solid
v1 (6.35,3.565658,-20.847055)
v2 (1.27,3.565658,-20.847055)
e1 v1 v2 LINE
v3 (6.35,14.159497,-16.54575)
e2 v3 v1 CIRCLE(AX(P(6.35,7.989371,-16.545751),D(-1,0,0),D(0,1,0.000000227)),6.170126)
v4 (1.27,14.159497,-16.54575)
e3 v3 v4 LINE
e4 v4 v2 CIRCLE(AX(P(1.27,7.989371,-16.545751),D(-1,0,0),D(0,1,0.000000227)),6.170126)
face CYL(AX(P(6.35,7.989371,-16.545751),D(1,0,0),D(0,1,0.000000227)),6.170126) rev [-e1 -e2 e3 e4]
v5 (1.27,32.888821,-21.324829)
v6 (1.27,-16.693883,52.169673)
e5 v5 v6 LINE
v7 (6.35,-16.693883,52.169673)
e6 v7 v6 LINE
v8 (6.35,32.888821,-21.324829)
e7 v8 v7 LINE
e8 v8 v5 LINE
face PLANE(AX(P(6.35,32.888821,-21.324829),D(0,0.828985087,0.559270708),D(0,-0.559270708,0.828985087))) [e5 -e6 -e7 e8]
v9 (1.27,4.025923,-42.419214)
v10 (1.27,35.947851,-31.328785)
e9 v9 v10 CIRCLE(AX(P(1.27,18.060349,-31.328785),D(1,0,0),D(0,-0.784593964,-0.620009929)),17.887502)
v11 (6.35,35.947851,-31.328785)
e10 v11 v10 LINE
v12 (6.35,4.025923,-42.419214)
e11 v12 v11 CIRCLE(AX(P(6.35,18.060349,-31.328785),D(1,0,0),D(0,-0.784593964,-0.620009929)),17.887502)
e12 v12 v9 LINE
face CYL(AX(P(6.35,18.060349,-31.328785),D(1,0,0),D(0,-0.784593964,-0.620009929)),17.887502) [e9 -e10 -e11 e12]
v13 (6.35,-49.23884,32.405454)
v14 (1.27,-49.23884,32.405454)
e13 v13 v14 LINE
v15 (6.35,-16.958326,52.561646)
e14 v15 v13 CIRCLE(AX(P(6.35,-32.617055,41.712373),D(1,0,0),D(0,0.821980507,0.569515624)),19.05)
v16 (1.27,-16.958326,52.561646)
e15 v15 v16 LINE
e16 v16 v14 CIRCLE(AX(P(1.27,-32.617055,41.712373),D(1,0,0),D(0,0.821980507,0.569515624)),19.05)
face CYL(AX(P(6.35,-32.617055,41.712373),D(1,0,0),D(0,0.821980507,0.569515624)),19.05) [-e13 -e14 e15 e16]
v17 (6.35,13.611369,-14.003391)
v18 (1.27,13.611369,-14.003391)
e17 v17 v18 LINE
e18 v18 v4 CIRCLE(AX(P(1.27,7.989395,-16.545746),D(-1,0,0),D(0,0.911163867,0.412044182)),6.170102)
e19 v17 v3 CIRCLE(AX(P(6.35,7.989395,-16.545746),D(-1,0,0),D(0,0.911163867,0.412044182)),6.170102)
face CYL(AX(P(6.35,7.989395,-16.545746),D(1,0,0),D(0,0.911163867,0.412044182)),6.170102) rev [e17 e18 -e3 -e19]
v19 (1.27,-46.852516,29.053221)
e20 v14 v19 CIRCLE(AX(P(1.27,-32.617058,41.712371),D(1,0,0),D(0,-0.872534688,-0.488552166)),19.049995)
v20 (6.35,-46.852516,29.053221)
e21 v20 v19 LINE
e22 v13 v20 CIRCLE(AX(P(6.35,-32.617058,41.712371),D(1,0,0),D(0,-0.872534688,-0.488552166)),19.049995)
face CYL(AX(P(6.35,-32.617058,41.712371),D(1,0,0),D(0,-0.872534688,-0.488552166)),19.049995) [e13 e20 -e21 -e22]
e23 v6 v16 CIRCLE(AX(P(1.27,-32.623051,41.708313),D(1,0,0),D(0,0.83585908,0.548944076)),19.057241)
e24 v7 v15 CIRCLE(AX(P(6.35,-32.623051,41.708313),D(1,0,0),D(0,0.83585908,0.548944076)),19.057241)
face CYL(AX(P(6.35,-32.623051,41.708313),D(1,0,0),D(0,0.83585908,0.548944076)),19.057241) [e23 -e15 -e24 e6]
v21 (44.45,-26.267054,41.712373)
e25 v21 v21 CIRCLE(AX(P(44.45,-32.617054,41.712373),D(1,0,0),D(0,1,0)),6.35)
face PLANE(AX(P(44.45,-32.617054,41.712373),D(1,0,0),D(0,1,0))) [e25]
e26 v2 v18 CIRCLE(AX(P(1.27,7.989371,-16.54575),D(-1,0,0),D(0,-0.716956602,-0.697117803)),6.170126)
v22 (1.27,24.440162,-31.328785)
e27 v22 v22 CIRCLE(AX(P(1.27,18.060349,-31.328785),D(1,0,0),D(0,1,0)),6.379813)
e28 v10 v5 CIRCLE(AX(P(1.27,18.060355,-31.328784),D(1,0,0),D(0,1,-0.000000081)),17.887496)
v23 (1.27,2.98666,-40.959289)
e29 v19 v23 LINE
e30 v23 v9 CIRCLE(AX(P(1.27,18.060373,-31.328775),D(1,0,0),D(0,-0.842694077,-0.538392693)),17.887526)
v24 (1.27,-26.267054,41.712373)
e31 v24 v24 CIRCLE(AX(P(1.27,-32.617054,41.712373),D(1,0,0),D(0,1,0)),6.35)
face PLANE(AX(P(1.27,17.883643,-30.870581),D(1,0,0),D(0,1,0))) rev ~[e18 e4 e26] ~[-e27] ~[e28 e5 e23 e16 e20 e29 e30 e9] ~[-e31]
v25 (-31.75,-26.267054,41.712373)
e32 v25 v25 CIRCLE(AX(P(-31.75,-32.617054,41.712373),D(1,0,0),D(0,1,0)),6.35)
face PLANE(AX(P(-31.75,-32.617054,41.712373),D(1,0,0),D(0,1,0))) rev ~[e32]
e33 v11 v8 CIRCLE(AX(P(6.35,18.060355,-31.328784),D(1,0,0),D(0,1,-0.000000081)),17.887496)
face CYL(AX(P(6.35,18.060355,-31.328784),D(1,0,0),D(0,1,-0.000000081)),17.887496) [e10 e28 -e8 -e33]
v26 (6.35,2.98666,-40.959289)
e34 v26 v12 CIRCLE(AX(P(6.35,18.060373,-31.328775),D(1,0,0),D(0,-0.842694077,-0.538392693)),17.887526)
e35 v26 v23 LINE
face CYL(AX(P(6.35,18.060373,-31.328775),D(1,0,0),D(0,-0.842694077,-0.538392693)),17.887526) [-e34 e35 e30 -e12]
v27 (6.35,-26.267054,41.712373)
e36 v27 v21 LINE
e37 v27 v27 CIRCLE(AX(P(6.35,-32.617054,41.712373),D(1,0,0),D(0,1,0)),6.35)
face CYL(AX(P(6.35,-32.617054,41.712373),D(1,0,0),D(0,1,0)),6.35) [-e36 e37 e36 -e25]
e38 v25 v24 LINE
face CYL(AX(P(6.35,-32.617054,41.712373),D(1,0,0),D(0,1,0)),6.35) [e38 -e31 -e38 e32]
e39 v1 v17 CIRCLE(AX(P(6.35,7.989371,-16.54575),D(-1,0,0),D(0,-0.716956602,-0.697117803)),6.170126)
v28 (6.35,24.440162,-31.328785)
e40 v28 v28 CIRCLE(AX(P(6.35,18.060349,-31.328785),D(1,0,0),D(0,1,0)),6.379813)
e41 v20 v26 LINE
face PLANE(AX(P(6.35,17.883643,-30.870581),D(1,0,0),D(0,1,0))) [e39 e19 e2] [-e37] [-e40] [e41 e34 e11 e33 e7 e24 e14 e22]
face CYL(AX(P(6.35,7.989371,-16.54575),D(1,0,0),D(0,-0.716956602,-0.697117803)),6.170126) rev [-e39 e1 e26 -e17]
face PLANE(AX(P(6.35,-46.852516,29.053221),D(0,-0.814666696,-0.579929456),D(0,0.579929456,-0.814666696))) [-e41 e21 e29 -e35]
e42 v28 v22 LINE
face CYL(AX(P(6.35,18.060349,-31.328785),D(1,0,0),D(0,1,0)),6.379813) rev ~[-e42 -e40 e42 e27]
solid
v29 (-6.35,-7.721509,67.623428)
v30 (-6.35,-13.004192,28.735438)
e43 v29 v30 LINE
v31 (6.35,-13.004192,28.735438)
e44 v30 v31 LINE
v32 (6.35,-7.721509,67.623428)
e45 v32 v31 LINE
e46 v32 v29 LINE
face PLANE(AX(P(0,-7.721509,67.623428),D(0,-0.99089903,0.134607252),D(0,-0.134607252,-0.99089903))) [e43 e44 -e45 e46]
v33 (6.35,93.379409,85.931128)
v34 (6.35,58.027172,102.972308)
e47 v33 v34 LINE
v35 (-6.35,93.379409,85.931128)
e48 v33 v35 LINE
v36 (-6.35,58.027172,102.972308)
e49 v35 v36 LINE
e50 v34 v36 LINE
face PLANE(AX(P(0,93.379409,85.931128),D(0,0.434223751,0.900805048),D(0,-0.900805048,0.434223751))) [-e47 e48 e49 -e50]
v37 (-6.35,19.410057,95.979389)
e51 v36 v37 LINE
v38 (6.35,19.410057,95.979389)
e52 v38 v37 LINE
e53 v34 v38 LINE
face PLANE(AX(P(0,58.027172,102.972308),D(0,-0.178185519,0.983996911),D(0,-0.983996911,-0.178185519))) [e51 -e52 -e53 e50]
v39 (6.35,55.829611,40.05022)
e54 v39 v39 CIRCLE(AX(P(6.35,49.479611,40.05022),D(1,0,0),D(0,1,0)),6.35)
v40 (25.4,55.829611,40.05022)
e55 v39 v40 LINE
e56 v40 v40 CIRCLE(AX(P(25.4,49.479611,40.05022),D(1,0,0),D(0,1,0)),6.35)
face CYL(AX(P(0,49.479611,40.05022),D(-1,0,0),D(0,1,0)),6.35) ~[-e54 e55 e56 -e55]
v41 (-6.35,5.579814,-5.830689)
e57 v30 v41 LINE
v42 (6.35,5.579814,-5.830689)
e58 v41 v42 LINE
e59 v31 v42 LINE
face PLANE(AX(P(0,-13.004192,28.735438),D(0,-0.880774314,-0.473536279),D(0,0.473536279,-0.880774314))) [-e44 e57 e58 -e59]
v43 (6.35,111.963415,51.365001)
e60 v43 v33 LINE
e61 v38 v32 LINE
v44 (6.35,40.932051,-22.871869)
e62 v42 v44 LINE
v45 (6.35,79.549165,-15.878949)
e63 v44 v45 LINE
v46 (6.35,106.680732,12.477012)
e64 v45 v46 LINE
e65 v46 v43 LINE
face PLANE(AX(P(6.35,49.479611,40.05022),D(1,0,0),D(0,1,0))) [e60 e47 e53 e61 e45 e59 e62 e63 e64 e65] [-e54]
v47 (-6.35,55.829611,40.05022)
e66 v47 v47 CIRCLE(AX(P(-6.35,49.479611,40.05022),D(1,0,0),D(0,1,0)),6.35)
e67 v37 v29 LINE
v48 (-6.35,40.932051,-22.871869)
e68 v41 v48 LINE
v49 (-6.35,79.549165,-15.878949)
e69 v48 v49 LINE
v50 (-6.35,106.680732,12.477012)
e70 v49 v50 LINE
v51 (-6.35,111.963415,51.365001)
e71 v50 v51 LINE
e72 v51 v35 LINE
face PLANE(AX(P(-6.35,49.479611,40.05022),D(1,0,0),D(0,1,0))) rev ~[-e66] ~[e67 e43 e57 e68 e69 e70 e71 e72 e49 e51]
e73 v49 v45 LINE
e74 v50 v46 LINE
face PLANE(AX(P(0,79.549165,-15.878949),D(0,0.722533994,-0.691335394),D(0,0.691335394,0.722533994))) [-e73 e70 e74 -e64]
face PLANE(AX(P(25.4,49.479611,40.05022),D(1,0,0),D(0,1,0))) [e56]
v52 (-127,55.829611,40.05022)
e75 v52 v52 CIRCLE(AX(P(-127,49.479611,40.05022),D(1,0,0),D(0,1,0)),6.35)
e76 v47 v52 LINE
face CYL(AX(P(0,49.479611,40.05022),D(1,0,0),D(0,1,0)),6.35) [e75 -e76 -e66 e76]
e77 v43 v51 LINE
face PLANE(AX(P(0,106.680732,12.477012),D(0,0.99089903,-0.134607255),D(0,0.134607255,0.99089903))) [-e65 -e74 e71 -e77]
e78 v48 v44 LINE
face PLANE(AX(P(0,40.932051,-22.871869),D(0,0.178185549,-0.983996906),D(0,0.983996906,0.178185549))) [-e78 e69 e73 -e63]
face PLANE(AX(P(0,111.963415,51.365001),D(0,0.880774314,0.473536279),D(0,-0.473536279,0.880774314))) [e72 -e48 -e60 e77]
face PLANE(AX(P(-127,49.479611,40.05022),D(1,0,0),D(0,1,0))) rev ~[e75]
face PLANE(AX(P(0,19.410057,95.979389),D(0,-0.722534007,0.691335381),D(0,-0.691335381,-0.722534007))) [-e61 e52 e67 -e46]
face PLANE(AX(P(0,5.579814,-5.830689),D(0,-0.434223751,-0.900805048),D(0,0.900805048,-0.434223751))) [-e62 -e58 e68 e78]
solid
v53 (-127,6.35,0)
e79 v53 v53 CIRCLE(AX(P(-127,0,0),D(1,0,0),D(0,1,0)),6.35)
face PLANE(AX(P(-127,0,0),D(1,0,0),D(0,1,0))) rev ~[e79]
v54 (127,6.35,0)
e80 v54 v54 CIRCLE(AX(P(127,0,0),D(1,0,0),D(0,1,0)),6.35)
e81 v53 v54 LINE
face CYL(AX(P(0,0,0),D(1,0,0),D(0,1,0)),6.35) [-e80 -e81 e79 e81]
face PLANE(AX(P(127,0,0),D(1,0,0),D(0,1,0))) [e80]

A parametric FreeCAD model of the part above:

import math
import FreeCAD as App
import Part
import Sketcher
Q = App.Units.Quantity


def add_polygon(sketch, points):
    """Adds a closed chain of lines whose ends are joined by coincident constraints."""
    first, n = sketch.GeometryCount, len(points)
    for a, b in zip(points, points[1:] + points[:1]):
        sketch.addGeometry(Part.LineSegment(App.Vector(*a, 0), App.Vector(*b, 0)), False)
    for i in range(n):
        sketch.addConstraint(Sketcher.Constraint("Coincident", first + i, 2, first + (i + 1) % n, 1))

doc = App.newDocument("Part")
body = doc.addObject("PartDesign::Body", "Body")

sketch1 = body.newObject("Sketcher::SketchObject", "Sketch")
sketch1.AttachmentSupport = (doc.getObject("YZ_Plane"), [""])
sketch1.MapMode = "FlatFace"
sketch1.addGeometry(Part.Circle(App.Vector(0, 0, 0), App.Vector(0, 0, 1), 6), False)
sketch1.addConstraint([
    Sketcher.Constraint("Coincident", 0, 3, -1, 1),
    Sketcher.Constraint("Diameter", 0, Q("0.5 in")),
])
pad1 = body.newObject("PartDesign::Pad", "Pad")
pad1.Profile = sketch1
pad1.Length = Q("10 in")
pad1.Midplane = True
body2 = doc.addObject("PartDesign::Body", "Body001")

sketch2 = body2.newObject("Sketcher::SketchObject", "Sketch001")
sketch2.AttachmentSupport = (doc.getObject("YZ_Plane001"), [""])
sketch2.MapMode = "FlatFace"
add_polygon(sketch2, [(-8, 68), (-13, 29), (6, -6), (41, -23), (80, -16), (107, 12), (112, 51), (93, 86), (58, 103), (19, 96)])
sketch2.addGeometry(Part.Circle(App.Vector(49, 40, 0), App.Vector(0, 0, 1), 6), False)
sketch2.addConstraint([
    Sketcher.Constraint("Parallel", 0, 5),
    Sketcher.Constraint("Parallel", 1, 6),
    Sketcher.Constraint("Parallel", 2, 7),
    Sketcher.Constraint("Parallel", 3, 8),
    Sketcher.Constraint("Parallel", 4, 9),
    Sketcher.Constraint("Equal", 0, 1),
    Sketcher.Constraint("Equal", 1, 2),
    Sketcher.Constraint("Equal", 2, 3),
    Sketcher.Constraint("Equal", 3, 4),
    Sketcher.Constraint("Equal", 4, 5),
    Sketcher.Constraint("Equal", 5, 6),
    Sketcher.Constraint("Equal", 6, 7),
    Sketcher.Constraint("Diameter", 10, Q("0.5 in")),
    Sketcher.Constraint("DistanceY", -1, 1, 5, 2, 51.365001),
    Sketcher.Constraint("DistanceY", 1, 2, 4, 2, 18.307701),
    Sketcher.Constraint("DistanceX", 1, 2, 5, 2, 106.383601),
    Sketcher.Constraint("Distance", 0, 39.245159),
    Sketcher.Constraint("DistanceX", -1, 1, 10, 3, 49.479611),
    Sketcher.Constraint("DistanceY", -1, 1, 10, 3, 40.05022),
    Sketcher.Constraint("DistanceY", 1, 2, -1, 1, 5.830689),
    Sketcher.Constraint("DistanceX", -1, 1, 2, 2, 40.932051),
    Sketcher.Constraint("DistanceY", 2, 2, -1, 1, 22.871869),
    Sketcher.Constraint("DistanceX", -1, 1, 6, 2, 93.379409),
])
pad2 = body2.newObject("PartDesign::Pad", "Pad001")
pad2.Profile = sketch2
pad2.Length = Q("0.5 in")
pad2.Midplane = True

sketch3 = body2.newObject("Sketcher::SketchObject", "Sketch002")
sketch3.AttachmentSupport = (doc.getObject("YZ_Plane001"), [""])
sketch3.MapMode = "FlatFace"
sketch3.addGeometry(Part.Circle(App.Vector(49, 40, 0), App.Vector(0, 0, 1), 6), False)
sketch3.addConstraint([
    Sketcher.Constraint("Diameter", 0, Q("0.5 in")),
    Sketcher.Constraint("DistanceX", -1, 1, 0, 3, 49.479611),
    Sketcher.Constraint("DistanceY", -1, 1, 0, 3, 40.05022),
])
pad3 = body2.newObject("PartDesign::Pad", "Pad002")
pad3.Profile = sketch3
pad3.Length = Q("1 in")

sketch4 = body2.newObject("Sketcher::SketchObject", "Sketch003")
sketch4.AttachmentSupport = (doc.getObject("YZ_Plane001"), [""])
sketch4.MapMode = "FlatFace"
sketch4.addGeometry(Part.Circle(App.Vector(49, 40, 0), App.Vector(0, 0, 1), 6), False)
sketch4.addConstraint([
    Sketcher.Constraint("Diameter", 0, Q("0.5 in")),
    Sketcher.Constraint("DistanceX", -1, 1, 0, 3, 49.479611),
    Sketcher.Constraint("DistanceY", -1, 1, 0, 3, 40.05022),
])
pad4 = body2.newObject("PartDesign::Pad", "Pad003")
pad4.Profile = sketch4
pad4.Length = Q("5 in")
pad4.Reversed = True
body3 = doc.addObject("PartDesign::Body", "Body002")

sketch5 = body3.newObject("Sketcher::SketchObject", "Sketch004")
sketch5.AttachmentSupport = (doc.getObject("YZ_Plane002"), [""])
sketch5.MapMode = "FlatFace"
sketch5.AttachmentOffset = App.Placement(App.Vector(0, 0, 0.25 * 25.4), App.Rotation())
sketch5.addGeometry([
    Part.ArcOfCircle(Part.Circle(App.Vector(18.060349, -31.328785, 0), App.Vector(0, 0, 1), 17.887502), math.radians(-141.68314), math.radians(0.000001)),
    Part.ArcOfCircle(Part.Circle(App.Vector(18.060355, -31.328784, 0), App.Vector(0, 0, 1), 17.887496), math.radians(-0.000005), math.radians(34.005386)),
    Part.LineSegment(App.Vector(32.888821, -21.324829, 0), App.Vector(-16.693883, 52.169673, 0)),
    Part.ArcOfCircle(Part.Circle(App.Vector(-32.623051, 41.708313, 0), App.Vector(0, 0, 1), 19.057241), math.radians(33.294602), math.radians(34.716222)),
    Part.ArcOfCircle(Part.Circle(App.Vector(-32.617055, 41.712373, 0), App.Vector(0, 0, 1), 19.05), math.radians(34.716456), math.radians(209.245466)),
    Part.ArcOfCircle(Part.Circle(App.Vector(-32.617058, 41.712371, 0), App.Vector(0, 0, 1), 19.049995), math.radians(-150.754536), math.radians(-138.354301)),
    Part.LineSegment(App.Vector(-46.852516, 29.053221, 0), App.Vector(2.98666, -40.959289, 0)),
    Part.ArcOfCircle(Part.Circle(App.Vector(18.060373, -31.328775, 0), App.Vector(0, 0, 1), 17.887526), math.radians(-147.425711), math.radians(-141.683163)),
    Part.ArcOfCircle(Part.Circle(App.Vector(7.989371, -16.545751, 0), App.Vector(0, 0, 1), 6.170126), math.radians(-135.803792), math.radians(0.000013)),
    Part.ArcOfCircle(Part.Circle(App.Vector(7.989371, -16.54575, 0), App.Vector(0, 0, 1), 6.170126), math.radians(24.333258), math.radians(224.19622)),
    Part.ArcOfCircle(Part.Circle(App.Vector(7.989395, -16.545746, 0), App.Vector(0, 0, 1), 6.170102), math.radians(-0.000041), math.radians(24.333312)),
    Part.Circle(App.Vector(18.060349, -31.328785, 0), App.Vector(0, 0, 1), 6.379813),
    Part.Circle(App.Vector(-32.617054, 41.712373, 0), App.Vector(0, 0, 1), 6.35),
], False)
sketch5.addConstraint([
    Sketcher.Constraint("Coincident", 0, 2, 1, 1),
    Sketcher.Constraint("Coincident", 1, 2, 2, 1),
    Sketcher.Constraint("Coincident", 2, 2, 3, 1),
    Sketcher.Constraint("Coincident", 3, 2, 4, 1),
    Sketcher.Constraint("Coincident", 4, 2, 5, 1),
    Sketcher.Constraint("Coincident", 5, 2, 6, 1),
    Sketcher.Constraint("Coincident", 6, 2, 7, 1),
    Sketcher.Constraint("Coincident", 7, 2, 0, 1),
    Sketcher.Constraint("Coincident", 8, 1, 9, 2),
    Sketcher.Constraint("Coincident", 9, 1, 10, 2),
    Sketcher.Constraint("Coincident", 10, 1, 8, 2),
    Sketcher.Constraint("Coincident", 1, 3, 0, 3),
    Sketcher.Constraint("Coincident", 5, 3, 4, 3),
    Sketcher.Constraint("Coincident", 9, 3, 8, 3),
    Sketcher.Constraint("Coincident", 11, 3, 0, 3),
    Sketcher.Constraint("Coincident", 12, 3, 4, 3),
    Sketcher.Constraint("Diameter", 12, Q("0.5 in")),
    Sketcher.Constraint("Radius", 4, Q("0.75 in")),
    Sketcher.Constraint("Radius", 0, 17.887502),
    Sketcher.Constraint("Radius", 10, 6.170102),
    Sketcher.Constraint("Radius", 3, 19.057241),
    Sketcher.Constraint("Diameter", 11, 12.759626),
    Sketcher.Constraint("Radius", 7, 17.887526),
    Sketcher.Constraint("Radius", 8, 6.170126),
    Sketcher.Constraint("Distance", 2, 88.656),
    Sketcher.Constraint("DistanceX", 3, 3, 0, 3, 50.6834),
    Sketcher.Constraint("DistanceY", 0, 3, 3, 3, 73.037098),
    Sketcher.Constraint("DistanceX", 8, 3, 7, 3, 10.071001),
    Sketcher.Constraint("DistanceY", 12, 3, 2, 2, 10.4573),
    Sketcher.Constraint("DistanceX", 9, 3, 9, 1, 5.621998),
    Sketcher.Constraint("DistanceX", -1, 1, 0, 3, 18.060349),
    Sketcher.Constraint("DistanceX", 5, 3, -1, 1, 32.617058),
    Sketcher.Constraint("DistanceY", -1, 1, 5, 3, 41.712371),
    Sketcher.Constraint("DistanceX", -1, 1, 8, 3, 7.989371),
    Sketcher.Constraint("DistanceY", 8, 3, -1, 1, 16.545751),
    Sketcher.Constraint("DistanceX", 4, 2, -1, 1, 49.23884),
    Sketcher.Constraint("DistanceY", -1, 1, 5, 2, 29.053221),
    Sketcher.Constraint("DistanceX", -1, 1, 6, 2, 2.98666),
    Sketcher.Constraint("DistanceY", 10, 1, -1, 1, 16.54575),
    Sketcher.Constraint("DistanceY", 0, 2, 10, 3, 14.783039),
    Sketcher.Constraint("DistanceX", 4, 3, 3, 2, 15.658729),
    Sketcher.Constraint("DistanceY", 7, 2, 0, 3, 11.090429),
    Sketcher.Constraint("DistanceY", 8, 1, 10, 3, 4.301309),
])
pad5 = body3.newObject("PartDesign::Pad", "Pad004")
pad5.Profile = sketch5
pad5.Length = Q("0.2 in")
pad5.Reversed = True

sketch6 = body3.newObject("Sketcher::SketchObject", "Sketch005")
sketch6.AttachmentSupport = (doc.getObject("YZ_Plane002"), [""])
sketch6.MapMode = "FlatFace"
sketch6.AttachmentOffset = App.Placement(App.Vector(0, 0, 0.25 * 25.4), App.Rotation())
sketch6.addGeometry(Part.Circle(App.Vector(-33, 42, 0), App.Vector(0, 0, 1), 6), False)
sketch6.addConstraint([
    Sketcher.Constraint("Diameter", 0, Q("0.5 in")),
    Sketcher.Constraint("DistanceX", 0, 3, -1, 1, 32.617054),
    Sketcher.Constraint("DistanceY", -1, 1, 0, 3, 41.712373),
])
pad6 = body3.newObject("PartDesign::Pad", "Pad005")
pad6.Profile = sketch6
pad6.Length = Q("3 in")
pad6.Midplane = True

doc.recompute()
